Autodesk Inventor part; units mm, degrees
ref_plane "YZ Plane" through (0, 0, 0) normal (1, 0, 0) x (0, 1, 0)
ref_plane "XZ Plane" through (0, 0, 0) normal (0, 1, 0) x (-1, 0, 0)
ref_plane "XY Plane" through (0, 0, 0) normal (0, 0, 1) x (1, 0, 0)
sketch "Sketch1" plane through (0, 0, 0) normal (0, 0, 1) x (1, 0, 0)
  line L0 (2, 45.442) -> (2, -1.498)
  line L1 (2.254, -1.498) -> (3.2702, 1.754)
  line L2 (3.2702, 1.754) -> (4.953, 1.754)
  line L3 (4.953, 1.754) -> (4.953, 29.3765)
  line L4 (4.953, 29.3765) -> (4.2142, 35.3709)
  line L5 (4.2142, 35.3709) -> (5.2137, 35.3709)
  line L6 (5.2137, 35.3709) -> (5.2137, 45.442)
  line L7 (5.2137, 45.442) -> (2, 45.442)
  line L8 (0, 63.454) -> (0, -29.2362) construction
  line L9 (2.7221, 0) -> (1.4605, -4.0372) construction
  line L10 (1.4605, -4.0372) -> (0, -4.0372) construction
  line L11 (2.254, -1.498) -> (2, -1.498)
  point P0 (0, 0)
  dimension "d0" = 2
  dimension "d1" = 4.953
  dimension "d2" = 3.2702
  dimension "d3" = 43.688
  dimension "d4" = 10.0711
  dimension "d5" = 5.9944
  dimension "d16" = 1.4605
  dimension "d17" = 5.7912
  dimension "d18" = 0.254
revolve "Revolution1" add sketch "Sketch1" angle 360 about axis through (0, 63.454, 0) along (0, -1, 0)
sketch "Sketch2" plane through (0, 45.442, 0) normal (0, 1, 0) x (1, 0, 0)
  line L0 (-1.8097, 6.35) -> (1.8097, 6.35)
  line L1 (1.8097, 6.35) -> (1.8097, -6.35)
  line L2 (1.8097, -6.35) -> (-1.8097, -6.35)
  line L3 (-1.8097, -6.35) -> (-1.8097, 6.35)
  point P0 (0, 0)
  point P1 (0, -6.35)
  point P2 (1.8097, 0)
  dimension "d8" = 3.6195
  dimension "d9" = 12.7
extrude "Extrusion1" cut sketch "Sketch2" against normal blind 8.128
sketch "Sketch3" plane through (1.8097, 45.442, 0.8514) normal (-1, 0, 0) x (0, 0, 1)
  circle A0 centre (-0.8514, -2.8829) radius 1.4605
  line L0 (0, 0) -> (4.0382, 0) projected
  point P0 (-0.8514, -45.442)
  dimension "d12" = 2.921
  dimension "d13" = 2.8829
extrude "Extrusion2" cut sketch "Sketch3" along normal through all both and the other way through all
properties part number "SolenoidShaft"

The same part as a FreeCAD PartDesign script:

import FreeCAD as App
import Part
import Sketcher

V = App.Vector
Q = App.Units.Quantity

doc = App.newDocument("Part")
params = doc.addObject("Spreadsheet::Sheet", "Params")
for row, (alias, value) in enumerate([
    ("sketch1_width", "0.01 in"),
    ("revolution_angle", "360 deg"),
    ("sketch2_height", "0.5 in"),
    ("pocket1_length", "0.32 in"),
    ("sketch3_diameter", "0.115 in"),
], start=1):
    params.set(f"A{row}", alias)
    params.set(f"B{row}", "=" + value)
    params.setAlias(f"B{row}", alias)

body = doc.addObject("PartDesign::Body", "Body")

# Sketch on XY plane
sketch1 = body.newObject("Sketcher::SketchObject", "Sketch")
sketch1.AttachmentSupport = (doc.getObject("XY_Plane"), [""])
sketch1.MapMode = "FlatFace"
sketch1.addGeometry(Part.LineSegment(V(5.21, 45.44, 0), V(2, 45.44, 0)), False)
sketch1.addGeometry(Part.LineSegment(V(2, 45.44, 0), V(2, -1.5, 0)), False)
sketch1.addGeometry(Part.LineSegment(V(2, -1.5, 0), V(2.25, -1.5, 0)), False)
sketch1.addGeometry(Part.LineSegment(V(2.25, -1.5, 0), V(3.27, 1.75, 0)), False)
sketch1.addGeometry(Part.LineSegment(V(3.27, 1.75, 0), V(4.95, 1.75, 0)), False)
sketch1.addGeometry(Part.LineSegment(V(4.95, 1.75, 0), V(4.95, 29.38, 0)), False)
sketch1.addGeometry(Part.LineSegment(V(4.95, 29.38, 0), V(4.21, 35.37, 0)), False)
sketch1.addGeometry(Part.LineSegment(V(4.21, 35.37, 0), V(5.21, 35.37, 0)), False)
sketch1.addGeometry(Part.LineSegment(V(5.21, 35.37, 0), V(5.21, 45.44, 0)), False)
sketch1.addConstraint(Sketcher.Constraint("Coincident", 0, 2, 1, 1))
sketch1.addConstraint(Sketcher.Constraint("Coincident", 1, 2, 2, 1))
sketch1.addConstraint(Sketcher.Constraint("Coincident", 2, 2, 3, 1))
sketch1.addConstraint(Sketcher.Constraint("Coincident", 3, 2, 4, 1))
sketch1.addConstraint(Sketcher.Constraint("Coincident", 4, 2, 5, 1))
sketch1.addConstraint(Sketcher.Constraint("Coincident", 5, 2, 6, 1))
sketch1.addConstraint(Sketcher.Constraint("Coincident", 6, 2, 7, 1))
sketch1.addConstraint(Sketcher.Constraint("Coincident", 7, 2, 8, 1))
sketch1.addConstraint(Sketcher.Constraint("Coincident", 8, 2, 0, 1))
sketch1.addConstraint(Sketcher.Constraint("Horizontal", 0))
sketch1.addConstraint(Sketcher.Constraint("Vertical", 1))
sketch1.addConstraint(Sketcher.Constraint("Horizontal", 2))
sketch1.addConstraint(Sketcher.Constraint("Horizontal", 4))
sketch1.addConstraint(Sketcher.Constraint("Vertical", 5))
sketch1.addConstraint(Sketcher.Constraint("Horizontal", 7))
sketch1.addConstraint(Sketcher.Constraint("Vertical", 8))
sketch1.addConstraint(Sketcher.Constraint("DistanceX", 2, 1, 2, 2, Q("0.01 in")))
sketch1.addConstraint(Sketcher.Constraint("DistanceY", 3, 2, 0, 2, Q("1.72 in")))
sketch1.addConstraint(Sketcher.Constraint("DistanceY", 8, 1, 8, 2, Q("0.3965 in")))
sketch1.addConstraint(Sketcher.Constraint("DistanceX", -1, 1, 4, 2, Q("0.195 in")))
sketch1.addConstraint(Sketcher.Constraint("DistanceY", 5, 2, 6, 2, Q("0.236 in")))
sketch1.addConstraint(Sketcher.Constraint("DistanceX", -1, 1, 0, 2, Q("2 mm")))
sketch1.addConstraint(Sketcher.Constraint("DistanceX", -1, 1, 3, 2, Q("3.2702 mm")))
sketch1.addConstraint(Sketcher.Constraint("DistanceX", 0, 2, 0, 1, Q("3.2137 mm")))
sketch1.addConstraint(Sketcher.Constraint("DistanceX", 7, 1, 7, 2, Q("0.9995 mm")))
sketch1.addConstraint(Sketcher.Constraint("DistanceY", 1, 2, 1, 1, Q("46.94 mm")))
sketch1.addConstraint(Sketcher.Constraint("DistanceY", -1, 1, 0, 2, Q("45.442 mm")))
sketch1.setExpression("Constraints[16]", "Params.sketch1_width")
revolution = body.newObject("PartDesign::Revolution", "Revolution")
revolution.Profile = sketch1
revolution.ReferenceAxis = (sketch1, ["V_Axis"])
revolution.setExpression("Angle", "Params.revolution_angle")

# Sketch on XZ plane
sketch2 = body.newObject("Sketcher::SketchObject", "Sketch001")
sketch2.AttachmentSupport = (doc.getObject("XZ_Plane"), [""])
sketch2.MapMode = "FlatFace"
sketch2.AttachmentOffset = App.Placement(V(0, 0, -45.442), App.Rotation())
sketch2.addGeometry(Part.LineSegment(V(1.8, -6.3, 0), V(-1.8, -6.3, 0)), False)
sketch2.addGeometry(Part.LineSegment(V(-1.8, -6.3, 0), V(-1.8, 6.3, 0)), False)
sketch2.addGeometry(Part.LineSegment(V(-1.8, 6.3, 0), V(1.8, 6.3, 0)), False)
sketch2.addGeometry(Part.LineSegment(V(1.8, 6.3, 0), V(1.8, -6.3, 0)), False)
sketch2.addConstraint(Sketcher.Constraint("Coincident", 0, 2, 1, 1))
sketch2.addConstraint(Sketcher.Constraint("Coincident", 1, 2, 2, 1))
sketch2.addConstraint(Sketcher.Constraint("Coincident", 2, 2, 3, 1))
sketch2.addConstraint(Sketcher.Constraint("Coincident", 3, 2, 0, 1))
sketch2.addConstraint(Sketcher.Constraint("Horizontal", 0))
sketch2.addConstraint(Sketcher.Constraint("Vertical", 1))
sketch2.addConstraint(Sketcher.Constraint("Horizontal", 2))
sketch2.addConstraint(Sketcher.Constraint("Vertical", 3))
sketch2.addConstraint(Sketcher.Constraint("Symmetric", 0, 2, 2, 2, -1, 1))
sketch2.addConstraint(Sketcher.Constraint("DistanceY", 1, 1, 1, 2, Q("0.5 in")))
sketch2.addConstraint(Sketcher.Constraint("DistanceX", 0, 2, 0, 1, Q("0.1425 in")))
sketch2.setExpression("Constraints[9]", "Params.sketch2_height")
pocket1 = body.newObject("PartDesign::Pocket", "Pocket")
pocket1.Profile = sketch2
pocket1.setExpression("Length", "Params.pocket1_length")
pocket1.Reversed = True

# Sketch on YZ plane
sketch3 = body.newObject("Sketcher::SketchObject", "Sketch002")
sketch3.AttachmentSupport = (doc.getObject("YZ_Plane"), [""])
sketch3.MapMode = "FlatFace"
sketch3.AttachmentOffset = App.Placement(V(0, 0, 1.8097), App.Rotation())
sketch3.addGeometry(Part.Circle(V(42.6, 0, 0), V(0, 0, 1), 1.5), False)
sketch3.addConstraint(Sketcher.Constraint("PointOnObject", 0, 3, -1))
sketch3.addConstraint(Sketcher.Constraint("Diameter", 0, Q("0.115 in")))
sketch3.addConstraint(Sketcher.Constraint("DistanceX", -1, 1, 0, 3, Q("42.559 mm")))
sketch3.setExpression("Constraints[1]", "Params.sketch3_diameter")
pocket2 = body.newObject("PartDesign::Pocket", "Pocket001")
pocket2.Profile = sketch3
pocket2.Type = "ThroughAll"
pocket2.Midplane = True

doc.recompute()
